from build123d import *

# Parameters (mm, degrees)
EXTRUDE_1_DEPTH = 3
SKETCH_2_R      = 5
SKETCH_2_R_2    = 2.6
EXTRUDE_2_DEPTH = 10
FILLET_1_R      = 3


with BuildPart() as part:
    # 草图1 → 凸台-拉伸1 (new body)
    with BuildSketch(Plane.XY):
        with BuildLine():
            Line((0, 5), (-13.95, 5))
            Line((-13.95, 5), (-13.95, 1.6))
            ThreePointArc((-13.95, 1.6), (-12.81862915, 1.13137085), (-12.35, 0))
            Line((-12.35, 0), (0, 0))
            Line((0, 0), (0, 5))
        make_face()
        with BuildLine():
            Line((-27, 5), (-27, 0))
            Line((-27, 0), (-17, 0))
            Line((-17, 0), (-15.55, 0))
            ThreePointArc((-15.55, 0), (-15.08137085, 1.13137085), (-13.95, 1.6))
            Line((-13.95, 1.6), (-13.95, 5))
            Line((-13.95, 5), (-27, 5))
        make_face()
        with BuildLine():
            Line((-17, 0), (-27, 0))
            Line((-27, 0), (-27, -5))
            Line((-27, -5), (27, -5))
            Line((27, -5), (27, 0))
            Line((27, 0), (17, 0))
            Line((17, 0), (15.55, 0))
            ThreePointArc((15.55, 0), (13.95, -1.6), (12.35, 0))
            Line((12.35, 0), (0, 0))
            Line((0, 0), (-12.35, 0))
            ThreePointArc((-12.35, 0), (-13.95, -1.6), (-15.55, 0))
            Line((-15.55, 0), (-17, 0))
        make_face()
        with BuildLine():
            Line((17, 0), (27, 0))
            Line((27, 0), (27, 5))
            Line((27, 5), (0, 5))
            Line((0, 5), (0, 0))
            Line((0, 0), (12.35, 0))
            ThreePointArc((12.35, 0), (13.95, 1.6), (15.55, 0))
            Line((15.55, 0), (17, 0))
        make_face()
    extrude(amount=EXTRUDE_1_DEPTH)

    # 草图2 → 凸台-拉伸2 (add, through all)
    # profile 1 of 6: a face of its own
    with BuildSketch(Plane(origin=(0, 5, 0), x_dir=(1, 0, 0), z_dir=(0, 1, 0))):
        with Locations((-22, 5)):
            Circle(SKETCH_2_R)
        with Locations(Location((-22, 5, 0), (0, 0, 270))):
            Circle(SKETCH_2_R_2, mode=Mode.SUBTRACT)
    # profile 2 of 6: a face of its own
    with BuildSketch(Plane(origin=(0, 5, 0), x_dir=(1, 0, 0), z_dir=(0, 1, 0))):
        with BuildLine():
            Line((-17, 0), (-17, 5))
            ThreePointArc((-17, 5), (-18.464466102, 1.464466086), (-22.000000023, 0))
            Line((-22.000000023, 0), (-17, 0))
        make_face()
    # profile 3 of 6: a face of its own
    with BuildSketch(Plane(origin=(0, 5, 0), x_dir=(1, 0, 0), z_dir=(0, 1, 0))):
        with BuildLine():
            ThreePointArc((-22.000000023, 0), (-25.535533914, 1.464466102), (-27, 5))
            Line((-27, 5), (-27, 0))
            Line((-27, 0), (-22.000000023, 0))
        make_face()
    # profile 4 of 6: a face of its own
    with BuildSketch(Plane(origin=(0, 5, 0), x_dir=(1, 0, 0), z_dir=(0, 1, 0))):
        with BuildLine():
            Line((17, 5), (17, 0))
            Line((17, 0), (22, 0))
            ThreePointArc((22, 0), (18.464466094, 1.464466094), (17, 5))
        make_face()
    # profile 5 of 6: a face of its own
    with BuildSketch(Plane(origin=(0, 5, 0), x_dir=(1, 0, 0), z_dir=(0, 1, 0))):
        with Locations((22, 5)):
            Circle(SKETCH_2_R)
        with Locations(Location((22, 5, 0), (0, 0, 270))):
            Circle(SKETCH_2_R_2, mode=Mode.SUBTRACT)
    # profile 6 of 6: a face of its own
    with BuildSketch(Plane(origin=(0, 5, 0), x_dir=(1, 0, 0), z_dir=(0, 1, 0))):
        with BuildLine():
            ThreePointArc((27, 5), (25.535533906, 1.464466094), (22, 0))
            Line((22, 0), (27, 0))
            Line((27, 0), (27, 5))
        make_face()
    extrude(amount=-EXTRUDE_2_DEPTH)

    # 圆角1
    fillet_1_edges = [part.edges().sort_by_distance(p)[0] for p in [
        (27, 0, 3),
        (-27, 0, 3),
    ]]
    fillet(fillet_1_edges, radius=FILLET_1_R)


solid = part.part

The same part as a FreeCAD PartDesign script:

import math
import FreeCAD as App
import Part
import Sketcher

V = App.Vector
Q = App.Units.Quantity


def edges_at(feature, points):
    """Names of the edges that pass closest to the given points."""
    edges = feature.Shape.Edges
    near = lambda p: min(range(len(edges)), key=lambda i: edges[i].distToShape(Part.Vertex(*p))[0])
    return sorted({f"Edge{near(p) + 1}" for p in points})

doc = App.newDocument("Part")
params = doc.addObject("Spreadsheet::Sheet", "Params")
for row, (alias, value) in enumerate([
    ("sketch1_diameter", "3.2 mm"),
    ("sketch1_width", "54 mm"),
    ("sketch1_height", "10 mm"),
    ("pad1_length", "3 mm"),
    ("sketch2_radius", "5 mm"),
    ("sketch2_diameter", "5.2 mm"),
    ("sketch2_height", "5 mm"),
    ("pad2_length", "10 mm"),
    ("fillet_radius", "3 mm"),
], start=1):
    params.set(f"A{row}", alias)
    params.set(f"B{row}", "=" + value)
    params.setAlias(f"B{row}", alias)

body = doc.addObject("PartDesign::Body", "Body")

# Sketch on XY plane
sketch1 = body.newObject("Sketcher::SketchObject", "Sketch")
sketch1.AttachmentSupport = (doc.getObject("XY_Plane"), [""])
sketch1.MapMode = "FlatFace"
sketch1.addGeometry([
    Part.LineSegment(V(-27, 5, 0), V(-27, -5, 0)),  # 0
    Part.LineSegment(V(-27, -5, 0), V(27, -5, 0)),  # 1
    Part.LineSegment(V(27, -5, 0), V(27, 5, 0)),  # 2
    Part.LineSegment(V(27, 5, 0), V(-27, 5, 0)),  # 3
    Part.Circle(V(13.9, 0, 0), V(0, 0, 1), 1.6),  # 4
    Part.ArcOfCircle(Part.Circle(V(-13.9, 0, 0), V(0, 0, 1), 1.6), math.radians(90), math.radians(180)),  # 5
    Part.ArcOfCircle(Part.Circle(V(-13.9, 0, 0), V(0, 0, 1), 1.6), math.radians(0), math.radians(90)),  # 6
    Part.ArcOfCircle(Part.Circle(V(-13.9, 0, 0), V(0, 0, 1), 1.6), math.radians(180), math.radians(360)),  # 7
], False)
sketch1.addConstraint([
    Sketcher.Constraint("Coincident", 0, 2, 1, 1),
    Sketcher.Constraint("Coincident", 1, 2, 2, 1),
    Sketcher.Constraint("Coincident", 2, 2, 3, 1),
    Sketcher.Constraint("Coincident", 3, 2, 0, 1),
    Sketcher.Constraint("Tangent", 5, 1, 6, 2),
    Sketcher.Constraint("Tangent", 6, 1, 7, 2),
    Sketcher.Constraint("Tangent", 7, 1, 5, 2),
    Sketcher.Constraint("Vertical", 0),
    Sketcher.Constraint("Horizontal", 1),
    Sketcher.Constraint("Vertical", 2),
    Sketcher.Constraint("Horizontal", 3),
    Sketcher.Constraint("Equal", 4, 5),
    Sketcher.Constraint("Symmetric", 4, 3, 5, 3, -1, 1),
    Sketcher.Constraint("Symmetric", 0, 2, 2, 2, -1, 1),
    Sketcher.Constraint("PointOnObject", 4, 3, -1),
    Sketcher.Constraint("PointOnObject", 6, 1, -1),
    Sketcher.Constraint("PointOnObject", 7, 1, -1),
    Sketcher.Constraint("Vertical", 7, 3, 5, 1),
    Sketcher.Constraint("Diameter", 4, Q("3.2 mm")),
    Sketcher.Constraint("DistanceX", 1, 1, 1, 2, Q("54 mm")),
    Sketcher.Constraint("DistanceY", 0, 2, 0, 1, Q("10 mm")),
    Sketcher.Constraint("DistanceX", 5, 3, 4, 3, Q("27.9 mm")),
])
sketch1.setExpression("Constraints[18]", "Params.sketch1_diameter")
sketch1.setExpression("Constraints[19]", "Params.sketch1_width")
sketch1.setExpression("Constraints[20]", "Params.sketch1_height")
pad1 = body.newObject("PartDesign::Pad", "Pad")
pad1.Profile = sketch1
pad1.setExpression("Length", "Params.pad1_length")

# Sketch on XZ plane
sketch2 = body.newObject("Sketcher::SketchObject", "Sketch001")
sketch2.AttachmentSupport = (doc.getObject("XZ_Plane"), [""])
sketch2.MapMode = "FlatFace"
sketch2.AttachmentOffset = App.Placement(V(0, 0, -5), App.Rotation())
sketch2.addGeometry([
    Part.ArcOfCircle(Part.Circle(V(-22, -5, 0), V(0, 0, 1), 5), math.radians(180), math.radians(360)),  # 0
    Part.LineSegment(V(-27, -5, 0), V(-27, 0, 0)),  # 1
    Part.LineSegment(V(-27, 0, 0), V(-17, 0, 0)),  # 2
    Part.LineSegment(V(-17, 0, 0), V(-17, -5, 0)),  # 3
    Part.Circle(V(-22, -5, 0), V(0, 0, 1), 2.6),  # 4
    Part.LineSegment(V(17, -5, 0), V(17, 0, 0)),  # 5
    Part.LineSegment(V(17, 0, 0), V(27, 0, 0)),  # 6
    Part.LineSegment(V(27, 0, 0), V(27, -5, 0)),  # 7
    Part.ArcOfCircle(Part.Circle(V(22, -5, 0), V(0, 0, 1), 5), math.radians(180), math.radians(360)),  # 8
    Part.Circle(V(22, -5, 0), V(0, 0, 1), 2.6),  # 9
], False)
sketch2.addConstraint([
    Sketcher.Constraint("Tangent", 0, 1, 1, 1),
    Sketcher.Constraint("Coincident", 1, 2, 2, 1),
    Sketcher.Constraint("Coincident", 2, 2, 3, 1),
    Sketcher.Constraint("Tangent", 3, 2, 0, 2),
    Sketcher.Constraint("Coincident", 5, 2, 6, 1),
    Sketcher.Constraint("Coincident", 6, 2, 7, 1),
    Sketcher.Constraint("Tangent", 7, 2, 8, 2),
    Sketcher.Constraint("Tangent", 8, 1, 5, 1),
    Sketcher.Constraint("Vertical", 1),
    Sketcher.Constraint("Horizontal", 2),
    Sketcher.Constraint("Vertical", 3),
    Sketcher.Constraint("Vertical", 5),
    Sketcher.Constraint("Horizontal", 6),
    Sketcher.Constraint("Vertical", 7),
    Sketcher.Constraint("Coincident", 4, 3, 0, 3),
    Sketcher.Constraint("Coincident", 9, 3, 8, 3),
    Sketcher.Constraint("Equal", 0, 8),
    Sketcher.Constraint("Equal", 4, 9),
    Sketcher.Constraint("Symmetric", 2, 2, 5, 2, -1, 1),
    Sketcher.Constraint("PointOnObject", 1, 2, -1),
    Sketcher.Constraint("Horizontal", 4, 3, 8, 3),
    Sketcher.Constraint("Radius", 0, Q("5 mm")),
    Sketcher.Constraint("Diameter", 4, Q("5.2 mm")),
    Sketcher.Constraint("DistanceY", 1, 1, 1, 2, Q("5 mm")),
    Sketcher.Constraint("DistanceX", 0, 3, -1, 1, Q("22 mm")),
])
sketch2.setExpression("Constraints[21]", "Params.sketch2_radius")
sketch2.setExpression("Constraints[22]", "Params.sketch2_diameter")
sketch2.setExpression("Constraints[23]", "Params.sketch2_height")
pad2 = body.newObject("PartDesign::Pad", "Pad001")
pad2.Profile = sketch2
pad2.setExpression("Length", "Params.pad2_length")
doc.recompute()

fillet = body.newObject("PartDesign::Fillet", "Fillet")
fillet.Base = (pad2, edges_at(pad2, [(27, 0, 3), (-27, 0, 3)]))
fillet.setExpression("Radius", "Params.fillet_radius")

doc.recompute()
